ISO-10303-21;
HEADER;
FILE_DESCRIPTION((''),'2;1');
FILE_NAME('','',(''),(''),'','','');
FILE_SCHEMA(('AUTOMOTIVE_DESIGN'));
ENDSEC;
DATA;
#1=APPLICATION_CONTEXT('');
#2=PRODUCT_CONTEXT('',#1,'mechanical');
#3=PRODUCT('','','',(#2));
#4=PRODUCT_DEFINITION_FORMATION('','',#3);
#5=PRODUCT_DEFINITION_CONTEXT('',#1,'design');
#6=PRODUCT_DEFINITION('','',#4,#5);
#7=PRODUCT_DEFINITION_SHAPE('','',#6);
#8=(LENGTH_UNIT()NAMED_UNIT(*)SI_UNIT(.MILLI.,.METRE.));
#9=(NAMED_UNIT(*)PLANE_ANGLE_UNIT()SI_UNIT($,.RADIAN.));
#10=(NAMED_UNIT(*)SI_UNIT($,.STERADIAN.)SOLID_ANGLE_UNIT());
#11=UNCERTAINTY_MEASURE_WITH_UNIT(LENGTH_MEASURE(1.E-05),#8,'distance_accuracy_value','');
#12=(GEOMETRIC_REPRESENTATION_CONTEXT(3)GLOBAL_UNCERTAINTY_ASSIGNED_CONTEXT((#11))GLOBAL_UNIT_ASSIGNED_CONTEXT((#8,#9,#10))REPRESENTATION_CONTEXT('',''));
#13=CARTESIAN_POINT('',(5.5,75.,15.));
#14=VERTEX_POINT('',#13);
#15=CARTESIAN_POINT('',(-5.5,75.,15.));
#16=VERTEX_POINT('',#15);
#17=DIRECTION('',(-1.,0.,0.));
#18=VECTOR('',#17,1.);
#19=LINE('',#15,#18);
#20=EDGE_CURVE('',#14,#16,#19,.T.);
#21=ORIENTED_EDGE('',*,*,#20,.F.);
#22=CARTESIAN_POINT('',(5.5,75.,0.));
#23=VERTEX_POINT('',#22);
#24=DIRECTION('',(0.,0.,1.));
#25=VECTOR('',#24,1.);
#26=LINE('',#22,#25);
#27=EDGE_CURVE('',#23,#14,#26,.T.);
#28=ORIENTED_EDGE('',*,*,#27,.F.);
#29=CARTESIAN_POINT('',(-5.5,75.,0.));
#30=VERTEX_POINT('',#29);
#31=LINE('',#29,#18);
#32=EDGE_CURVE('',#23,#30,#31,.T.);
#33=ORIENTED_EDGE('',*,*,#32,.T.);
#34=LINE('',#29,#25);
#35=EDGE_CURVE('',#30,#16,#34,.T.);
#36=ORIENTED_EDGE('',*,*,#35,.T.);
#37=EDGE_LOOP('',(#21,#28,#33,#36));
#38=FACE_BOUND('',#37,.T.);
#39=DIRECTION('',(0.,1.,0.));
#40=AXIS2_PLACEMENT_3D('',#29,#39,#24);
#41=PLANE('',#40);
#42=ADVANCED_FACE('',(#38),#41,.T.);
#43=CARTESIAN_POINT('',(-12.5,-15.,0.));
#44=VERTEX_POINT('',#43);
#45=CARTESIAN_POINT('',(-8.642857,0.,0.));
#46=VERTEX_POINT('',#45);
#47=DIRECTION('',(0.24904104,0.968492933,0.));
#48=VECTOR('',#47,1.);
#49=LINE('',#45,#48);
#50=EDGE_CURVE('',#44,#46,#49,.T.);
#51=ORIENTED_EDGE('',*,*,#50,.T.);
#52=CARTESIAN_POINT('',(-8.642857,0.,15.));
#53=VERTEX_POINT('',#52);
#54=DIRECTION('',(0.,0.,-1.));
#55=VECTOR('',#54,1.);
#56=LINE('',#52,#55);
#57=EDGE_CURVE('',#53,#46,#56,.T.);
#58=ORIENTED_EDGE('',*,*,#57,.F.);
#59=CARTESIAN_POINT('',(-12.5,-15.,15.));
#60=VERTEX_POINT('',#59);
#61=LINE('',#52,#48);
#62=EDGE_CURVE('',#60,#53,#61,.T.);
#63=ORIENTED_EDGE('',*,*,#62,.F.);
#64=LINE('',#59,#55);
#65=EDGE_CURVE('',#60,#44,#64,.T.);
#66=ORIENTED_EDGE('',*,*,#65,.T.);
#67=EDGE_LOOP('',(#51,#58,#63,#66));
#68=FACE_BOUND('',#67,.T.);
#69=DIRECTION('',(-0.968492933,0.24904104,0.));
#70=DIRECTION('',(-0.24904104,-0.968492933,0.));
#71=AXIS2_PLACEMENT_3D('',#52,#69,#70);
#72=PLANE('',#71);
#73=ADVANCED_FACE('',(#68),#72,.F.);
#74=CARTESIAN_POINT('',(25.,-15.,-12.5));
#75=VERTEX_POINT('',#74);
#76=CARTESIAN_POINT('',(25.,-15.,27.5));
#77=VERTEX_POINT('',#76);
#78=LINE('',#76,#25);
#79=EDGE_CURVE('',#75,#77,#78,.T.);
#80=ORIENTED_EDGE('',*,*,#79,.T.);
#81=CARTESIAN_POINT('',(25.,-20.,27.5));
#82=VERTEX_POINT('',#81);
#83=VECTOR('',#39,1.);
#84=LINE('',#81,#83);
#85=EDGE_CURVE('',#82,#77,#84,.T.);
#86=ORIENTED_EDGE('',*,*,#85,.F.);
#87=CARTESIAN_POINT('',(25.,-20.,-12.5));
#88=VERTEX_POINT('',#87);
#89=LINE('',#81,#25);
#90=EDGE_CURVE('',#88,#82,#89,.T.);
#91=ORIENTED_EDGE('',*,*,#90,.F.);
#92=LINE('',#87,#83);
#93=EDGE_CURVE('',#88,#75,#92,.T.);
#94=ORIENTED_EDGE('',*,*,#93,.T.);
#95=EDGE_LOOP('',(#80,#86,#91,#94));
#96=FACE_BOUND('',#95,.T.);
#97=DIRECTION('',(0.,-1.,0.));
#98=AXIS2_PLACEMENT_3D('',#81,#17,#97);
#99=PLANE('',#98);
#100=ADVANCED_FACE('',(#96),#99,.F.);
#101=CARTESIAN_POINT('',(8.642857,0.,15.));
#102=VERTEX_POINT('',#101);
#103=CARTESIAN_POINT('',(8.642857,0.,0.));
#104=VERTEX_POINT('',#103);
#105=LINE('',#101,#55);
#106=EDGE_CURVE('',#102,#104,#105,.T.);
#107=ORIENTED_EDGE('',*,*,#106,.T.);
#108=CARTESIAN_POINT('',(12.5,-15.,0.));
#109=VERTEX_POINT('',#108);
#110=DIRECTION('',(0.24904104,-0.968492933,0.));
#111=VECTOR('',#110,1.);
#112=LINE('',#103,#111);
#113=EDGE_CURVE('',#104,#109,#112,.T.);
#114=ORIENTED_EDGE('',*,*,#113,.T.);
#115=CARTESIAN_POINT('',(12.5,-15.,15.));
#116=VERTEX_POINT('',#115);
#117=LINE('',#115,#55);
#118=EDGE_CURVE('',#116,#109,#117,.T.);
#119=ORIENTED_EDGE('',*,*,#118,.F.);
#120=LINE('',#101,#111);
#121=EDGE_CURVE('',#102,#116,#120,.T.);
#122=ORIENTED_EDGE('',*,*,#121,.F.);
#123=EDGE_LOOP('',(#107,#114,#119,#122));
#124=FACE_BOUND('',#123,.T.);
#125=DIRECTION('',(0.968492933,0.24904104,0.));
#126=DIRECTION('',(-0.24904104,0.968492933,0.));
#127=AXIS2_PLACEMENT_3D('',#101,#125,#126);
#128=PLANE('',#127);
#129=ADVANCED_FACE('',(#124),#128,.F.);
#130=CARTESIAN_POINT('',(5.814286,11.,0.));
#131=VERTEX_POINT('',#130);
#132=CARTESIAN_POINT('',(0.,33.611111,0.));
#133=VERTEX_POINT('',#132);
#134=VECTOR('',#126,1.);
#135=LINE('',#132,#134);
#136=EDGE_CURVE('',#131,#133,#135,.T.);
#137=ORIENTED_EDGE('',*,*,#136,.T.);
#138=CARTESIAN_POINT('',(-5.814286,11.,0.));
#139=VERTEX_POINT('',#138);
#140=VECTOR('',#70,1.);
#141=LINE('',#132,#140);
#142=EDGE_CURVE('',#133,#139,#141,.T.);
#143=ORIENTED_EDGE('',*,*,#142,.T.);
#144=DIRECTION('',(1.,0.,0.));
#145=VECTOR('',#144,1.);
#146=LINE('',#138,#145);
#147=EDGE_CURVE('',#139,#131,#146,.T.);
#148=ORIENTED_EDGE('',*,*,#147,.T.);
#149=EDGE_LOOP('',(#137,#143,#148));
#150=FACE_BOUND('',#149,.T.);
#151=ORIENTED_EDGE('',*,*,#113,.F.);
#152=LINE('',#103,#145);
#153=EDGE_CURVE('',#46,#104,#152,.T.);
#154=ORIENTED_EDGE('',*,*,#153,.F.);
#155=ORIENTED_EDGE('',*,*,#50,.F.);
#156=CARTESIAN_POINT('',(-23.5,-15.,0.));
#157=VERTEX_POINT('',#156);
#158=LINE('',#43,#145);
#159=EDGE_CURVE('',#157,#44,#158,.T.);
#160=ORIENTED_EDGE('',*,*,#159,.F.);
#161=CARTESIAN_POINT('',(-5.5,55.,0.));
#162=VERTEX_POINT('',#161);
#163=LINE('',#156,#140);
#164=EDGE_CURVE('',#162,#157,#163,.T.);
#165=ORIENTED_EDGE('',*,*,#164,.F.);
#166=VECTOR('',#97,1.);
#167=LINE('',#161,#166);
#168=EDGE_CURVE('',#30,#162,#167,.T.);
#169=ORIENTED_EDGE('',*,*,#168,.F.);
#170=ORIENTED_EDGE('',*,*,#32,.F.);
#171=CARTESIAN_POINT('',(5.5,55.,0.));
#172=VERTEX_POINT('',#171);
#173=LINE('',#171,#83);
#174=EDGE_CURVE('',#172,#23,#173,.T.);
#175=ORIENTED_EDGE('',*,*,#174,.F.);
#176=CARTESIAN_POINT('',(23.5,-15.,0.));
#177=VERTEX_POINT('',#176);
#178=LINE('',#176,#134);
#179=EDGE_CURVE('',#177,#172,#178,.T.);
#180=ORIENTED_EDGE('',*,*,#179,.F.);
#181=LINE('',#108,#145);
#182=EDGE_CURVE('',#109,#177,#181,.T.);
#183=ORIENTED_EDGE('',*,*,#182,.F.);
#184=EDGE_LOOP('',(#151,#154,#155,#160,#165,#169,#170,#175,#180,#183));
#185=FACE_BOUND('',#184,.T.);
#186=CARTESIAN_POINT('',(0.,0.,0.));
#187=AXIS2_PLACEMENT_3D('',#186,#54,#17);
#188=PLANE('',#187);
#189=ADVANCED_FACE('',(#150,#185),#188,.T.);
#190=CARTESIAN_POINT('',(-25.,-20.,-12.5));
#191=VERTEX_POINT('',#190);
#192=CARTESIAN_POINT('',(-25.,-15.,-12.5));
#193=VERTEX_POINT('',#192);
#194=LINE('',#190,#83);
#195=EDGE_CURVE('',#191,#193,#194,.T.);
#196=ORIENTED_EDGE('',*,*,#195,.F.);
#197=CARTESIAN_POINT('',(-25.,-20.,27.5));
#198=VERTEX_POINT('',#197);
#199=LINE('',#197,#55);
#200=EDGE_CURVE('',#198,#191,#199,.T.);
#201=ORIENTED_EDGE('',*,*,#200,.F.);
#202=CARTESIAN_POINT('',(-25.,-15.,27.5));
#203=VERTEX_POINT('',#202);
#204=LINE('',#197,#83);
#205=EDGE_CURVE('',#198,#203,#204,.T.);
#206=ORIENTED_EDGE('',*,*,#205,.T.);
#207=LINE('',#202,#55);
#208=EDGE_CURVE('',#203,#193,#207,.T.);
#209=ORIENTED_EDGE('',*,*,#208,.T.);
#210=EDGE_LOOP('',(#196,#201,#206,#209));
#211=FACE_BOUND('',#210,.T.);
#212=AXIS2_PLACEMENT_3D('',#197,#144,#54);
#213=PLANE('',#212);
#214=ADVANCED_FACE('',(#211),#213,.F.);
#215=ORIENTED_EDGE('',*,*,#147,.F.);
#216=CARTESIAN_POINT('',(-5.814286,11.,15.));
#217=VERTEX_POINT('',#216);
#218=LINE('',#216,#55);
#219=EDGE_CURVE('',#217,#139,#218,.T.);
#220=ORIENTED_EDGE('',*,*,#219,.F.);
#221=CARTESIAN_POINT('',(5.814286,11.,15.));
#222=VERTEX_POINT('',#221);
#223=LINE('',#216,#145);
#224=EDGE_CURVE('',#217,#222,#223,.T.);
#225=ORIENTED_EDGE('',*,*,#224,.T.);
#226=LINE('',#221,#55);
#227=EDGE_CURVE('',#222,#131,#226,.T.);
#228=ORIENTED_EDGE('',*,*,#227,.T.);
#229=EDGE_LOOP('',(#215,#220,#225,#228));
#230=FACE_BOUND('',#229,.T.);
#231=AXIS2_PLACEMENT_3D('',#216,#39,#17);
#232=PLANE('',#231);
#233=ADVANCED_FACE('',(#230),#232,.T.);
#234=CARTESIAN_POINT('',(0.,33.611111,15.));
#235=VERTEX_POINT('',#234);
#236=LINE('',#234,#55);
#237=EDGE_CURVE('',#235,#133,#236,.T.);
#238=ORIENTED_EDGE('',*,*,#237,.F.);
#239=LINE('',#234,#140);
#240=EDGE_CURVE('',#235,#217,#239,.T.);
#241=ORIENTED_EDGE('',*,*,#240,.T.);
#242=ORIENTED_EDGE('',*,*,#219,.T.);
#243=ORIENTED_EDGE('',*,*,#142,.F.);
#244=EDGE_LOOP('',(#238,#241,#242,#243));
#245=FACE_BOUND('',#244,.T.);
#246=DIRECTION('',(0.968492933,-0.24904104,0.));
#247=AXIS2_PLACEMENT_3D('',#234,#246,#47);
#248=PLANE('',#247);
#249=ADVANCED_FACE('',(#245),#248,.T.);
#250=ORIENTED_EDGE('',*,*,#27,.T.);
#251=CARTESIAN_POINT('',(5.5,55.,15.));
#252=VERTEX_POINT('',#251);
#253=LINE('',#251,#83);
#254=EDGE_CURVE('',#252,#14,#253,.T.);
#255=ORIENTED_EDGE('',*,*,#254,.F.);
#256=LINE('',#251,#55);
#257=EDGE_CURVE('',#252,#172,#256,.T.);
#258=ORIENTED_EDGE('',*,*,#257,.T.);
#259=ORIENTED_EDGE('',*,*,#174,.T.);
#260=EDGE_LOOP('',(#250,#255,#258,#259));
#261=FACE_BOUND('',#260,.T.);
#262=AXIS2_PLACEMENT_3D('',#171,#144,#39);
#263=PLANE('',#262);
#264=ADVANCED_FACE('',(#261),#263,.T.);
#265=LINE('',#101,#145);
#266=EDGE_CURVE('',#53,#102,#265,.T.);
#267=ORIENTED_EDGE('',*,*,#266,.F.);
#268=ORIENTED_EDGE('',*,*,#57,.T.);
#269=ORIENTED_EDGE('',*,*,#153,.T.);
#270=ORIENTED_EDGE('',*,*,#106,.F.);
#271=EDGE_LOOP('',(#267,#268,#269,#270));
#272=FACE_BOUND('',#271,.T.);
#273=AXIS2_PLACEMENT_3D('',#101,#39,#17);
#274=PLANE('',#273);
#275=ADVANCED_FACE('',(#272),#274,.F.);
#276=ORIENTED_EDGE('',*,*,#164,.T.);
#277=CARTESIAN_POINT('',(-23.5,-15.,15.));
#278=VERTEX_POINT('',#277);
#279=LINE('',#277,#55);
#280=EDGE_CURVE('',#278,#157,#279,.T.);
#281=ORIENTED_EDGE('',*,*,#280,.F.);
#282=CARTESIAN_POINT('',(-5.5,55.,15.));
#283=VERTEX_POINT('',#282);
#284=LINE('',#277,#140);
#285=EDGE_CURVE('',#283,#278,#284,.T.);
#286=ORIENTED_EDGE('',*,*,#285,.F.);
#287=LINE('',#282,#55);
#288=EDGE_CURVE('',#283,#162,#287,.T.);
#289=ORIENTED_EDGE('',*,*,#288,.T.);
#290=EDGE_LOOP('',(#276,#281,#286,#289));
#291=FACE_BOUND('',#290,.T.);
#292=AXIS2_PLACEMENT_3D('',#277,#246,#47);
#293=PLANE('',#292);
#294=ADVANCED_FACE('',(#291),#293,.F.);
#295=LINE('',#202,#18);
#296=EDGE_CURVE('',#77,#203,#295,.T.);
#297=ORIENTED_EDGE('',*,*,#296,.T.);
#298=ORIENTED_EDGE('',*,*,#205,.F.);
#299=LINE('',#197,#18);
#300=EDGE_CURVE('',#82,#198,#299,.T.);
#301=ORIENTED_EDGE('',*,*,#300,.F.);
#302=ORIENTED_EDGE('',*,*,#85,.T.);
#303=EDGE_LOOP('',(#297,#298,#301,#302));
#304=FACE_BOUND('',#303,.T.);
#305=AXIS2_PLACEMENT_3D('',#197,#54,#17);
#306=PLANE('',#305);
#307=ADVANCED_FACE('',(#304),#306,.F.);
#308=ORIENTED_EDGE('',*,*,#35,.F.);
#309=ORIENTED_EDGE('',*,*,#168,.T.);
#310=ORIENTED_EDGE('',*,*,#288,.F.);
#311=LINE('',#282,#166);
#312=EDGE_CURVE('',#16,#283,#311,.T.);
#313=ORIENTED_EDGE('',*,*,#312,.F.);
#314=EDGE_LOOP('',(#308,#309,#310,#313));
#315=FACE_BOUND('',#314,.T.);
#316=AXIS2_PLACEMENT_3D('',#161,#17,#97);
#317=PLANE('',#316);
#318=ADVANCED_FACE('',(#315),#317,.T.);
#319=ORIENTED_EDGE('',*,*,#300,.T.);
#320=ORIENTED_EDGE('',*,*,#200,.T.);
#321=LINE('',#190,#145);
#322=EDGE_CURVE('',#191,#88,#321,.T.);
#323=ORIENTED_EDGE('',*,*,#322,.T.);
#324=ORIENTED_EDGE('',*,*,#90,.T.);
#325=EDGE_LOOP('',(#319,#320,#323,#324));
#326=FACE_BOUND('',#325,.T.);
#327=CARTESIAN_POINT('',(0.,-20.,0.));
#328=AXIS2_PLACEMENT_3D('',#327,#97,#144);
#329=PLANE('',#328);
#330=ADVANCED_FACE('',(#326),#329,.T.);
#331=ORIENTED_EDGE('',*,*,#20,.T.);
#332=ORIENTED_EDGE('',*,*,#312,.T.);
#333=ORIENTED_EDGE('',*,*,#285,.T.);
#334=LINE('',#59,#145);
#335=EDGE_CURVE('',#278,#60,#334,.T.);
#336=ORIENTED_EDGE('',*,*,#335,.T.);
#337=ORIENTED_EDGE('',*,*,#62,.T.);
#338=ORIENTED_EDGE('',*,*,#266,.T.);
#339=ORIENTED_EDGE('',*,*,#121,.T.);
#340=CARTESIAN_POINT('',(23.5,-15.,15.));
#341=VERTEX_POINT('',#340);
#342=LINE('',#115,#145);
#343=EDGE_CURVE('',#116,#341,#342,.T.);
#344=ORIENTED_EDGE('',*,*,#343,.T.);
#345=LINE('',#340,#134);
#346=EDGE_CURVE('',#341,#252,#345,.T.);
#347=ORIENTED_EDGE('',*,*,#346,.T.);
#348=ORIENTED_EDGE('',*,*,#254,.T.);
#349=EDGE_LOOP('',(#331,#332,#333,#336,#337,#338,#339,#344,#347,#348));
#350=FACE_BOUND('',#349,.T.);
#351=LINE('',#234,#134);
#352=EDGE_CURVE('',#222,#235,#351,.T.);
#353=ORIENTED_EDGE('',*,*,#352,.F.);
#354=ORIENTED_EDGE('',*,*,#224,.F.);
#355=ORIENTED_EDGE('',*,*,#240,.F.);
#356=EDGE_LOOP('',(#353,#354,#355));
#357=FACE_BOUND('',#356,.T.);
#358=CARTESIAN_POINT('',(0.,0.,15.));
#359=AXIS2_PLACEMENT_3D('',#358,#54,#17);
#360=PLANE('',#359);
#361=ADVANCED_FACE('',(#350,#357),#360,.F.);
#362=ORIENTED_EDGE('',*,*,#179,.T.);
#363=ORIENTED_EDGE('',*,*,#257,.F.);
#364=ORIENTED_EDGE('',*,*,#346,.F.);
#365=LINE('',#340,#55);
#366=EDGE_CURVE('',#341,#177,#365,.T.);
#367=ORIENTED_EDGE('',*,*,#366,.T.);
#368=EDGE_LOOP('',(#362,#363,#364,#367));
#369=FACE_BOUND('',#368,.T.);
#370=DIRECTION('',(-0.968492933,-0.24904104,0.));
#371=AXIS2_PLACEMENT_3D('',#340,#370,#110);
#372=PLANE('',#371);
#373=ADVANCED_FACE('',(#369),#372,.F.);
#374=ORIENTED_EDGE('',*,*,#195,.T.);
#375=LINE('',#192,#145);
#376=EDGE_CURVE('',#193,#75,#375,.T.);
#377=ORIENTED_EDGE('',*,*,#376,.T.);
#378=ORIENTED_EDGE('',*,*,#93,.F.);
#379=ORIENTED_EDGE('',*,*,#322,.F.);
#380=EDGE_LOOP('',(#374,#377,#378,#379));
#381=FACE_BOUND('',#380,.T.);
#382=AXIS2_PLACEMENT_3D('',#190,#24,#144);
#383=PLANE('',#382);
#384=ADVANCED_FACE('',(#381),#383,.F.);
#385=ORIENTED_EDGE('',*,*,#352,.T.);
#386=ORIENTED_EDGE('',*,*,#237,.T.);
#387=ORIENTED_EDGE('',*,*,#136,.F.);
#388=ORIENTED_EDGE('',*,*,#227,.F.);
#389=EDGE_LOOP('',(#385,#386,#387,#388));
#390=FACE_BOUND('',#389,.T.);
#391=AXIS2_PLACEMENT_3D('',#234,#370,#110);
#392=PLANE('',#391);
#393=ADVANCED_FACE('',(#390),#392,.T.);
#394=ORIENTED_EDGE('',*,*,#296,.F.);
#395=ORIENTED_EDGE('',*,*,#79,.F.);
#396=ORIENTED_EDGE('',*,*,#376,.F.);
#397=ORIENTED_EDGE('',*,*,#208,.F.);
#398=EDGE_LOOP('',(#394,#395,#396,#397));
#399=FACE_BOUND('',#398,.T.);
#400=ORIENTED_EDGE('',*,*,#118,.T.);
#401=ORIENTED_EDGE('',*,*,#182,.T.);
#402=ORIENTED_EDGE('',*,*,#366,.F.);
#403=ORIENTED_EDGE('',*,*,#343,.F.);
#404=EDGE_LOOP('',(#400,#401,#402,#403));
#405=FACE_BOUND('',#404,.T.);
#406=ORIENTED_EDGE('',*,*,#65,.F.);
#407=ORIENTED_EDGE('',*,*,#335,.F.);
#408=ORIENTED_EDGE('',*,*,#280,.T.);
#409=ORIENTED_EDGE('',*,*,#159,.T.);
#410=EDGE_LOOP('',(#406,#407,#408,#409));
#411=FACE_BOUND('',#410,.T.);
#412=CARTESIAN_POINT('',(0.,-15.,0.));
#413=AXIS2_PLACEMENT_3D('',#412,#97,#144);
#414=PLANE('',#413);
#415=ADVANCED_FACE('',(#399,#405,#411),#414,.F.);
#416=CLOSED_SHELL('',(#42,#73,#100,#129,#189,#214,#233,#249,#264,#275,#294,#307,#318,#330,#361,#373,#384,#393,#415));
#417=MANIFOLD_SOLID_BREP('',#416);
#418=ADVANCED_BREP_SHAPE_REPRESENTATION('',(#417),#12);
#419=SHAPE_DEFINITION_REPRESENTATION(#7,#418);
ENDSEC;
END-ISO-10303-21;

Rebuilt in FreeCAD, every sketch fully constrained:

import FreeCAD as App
import Part
import Sketcher
from FreeCAD import Vector
Q = App.Units.Quantity


def add_polygon(sketch, points):
    """Adds a closed chain of lines whose ends are joined by coincident constraints."""
    first, n = sketch.GeometryCount, len(points)
    for a, b in zip(points, points[1:] + points[:1]):
        sketch.addGeometry(Part.LineSegment(App.Vector(*a, 0), App.Vector(*b, 0)), False)
    for i in range(n):
        sketch.addConstraint(Sketcher.Constraint("Coincident", first + i, 2, first + (i + 1) % n, 1))

doc = App.newDocument("Part")
body = doc.addObject("PartDesign::Body", "Body")

sketch1 = body.newObject("Sketcher::SketchObject", "Sketch")
sketch1.AttachmentSupport = (doc.getObject("XY_Plane"), [""])
sketch1.MapMode = "FlatFace"
add_polygon(sketch1, [(-9, 0), (9, 0), (12, -15), (24, -15), (6, 55), (-6, 55), (-24, -15), (-12, -15)])
add_polygon(sketch1, [(0, 34), (6, 11), (-6, 11)])
sketch1.addConstraint([
    Sketcher.Constraint("Horizontal", 0),
    Sketcher.Constraint("Horizontal", 2),
    Sketcher.Constraint("Horizontal", 4),
    Sketcher.Constraint("Horizontal", 6),
    Sketcher.Constraint("Horizontal", 9),
    Sketcher.Constraint("Symmetric", 0, 2, 7, 2, -1, 1),
    Sketcher.Constraint("Symmetric", 2, 2, 5, 2, -2),
    Sketcher.Constraint("PointOnObject", 10, 2, -2),
    Sketcher.Constraint("Parallel", 1, 3),
    Sketcher.Constraint("Parallel", 5, 7),
    Sketcher.Constraint("Parallel", 3, 8),
    Sketcher.Constraint("Parallel", 7, 10),
    Sketcher.Constraint("Equal", 2, 4),
    Sketcher.Constraint("Equal", 4, 6),
    Sketcher.Constraint("DistanceX", 2, 1, 2, 2, Q("11 mm")),
    Sketcher.Constraint("DistanceY", 1, 2, -1, 1, Q("15 mm")),
    Sketcher.Constraint("DistanceY", -1, 1, 3, 2, Q("55 mm")),
    Sketcher.Constraint("DistanceY", -1, 1, 8, 2, Q("11 mm")),
    Sketcher.Constraint("DistanceX", 3, 2, 1, 2, Q("7 mm")),
    Sketcher.Constraint("DistanceX", 9, 2, 9, 1, Q("11.628571 mm")),
])
pad1 = body.newObject("PartDesign::Pad", "Pad")
pad1.Profile = sketch1
pad1.Length = 15

sketch2 = body.newObject("Sketcher::SketchObject", "Sketch001")
sketch2.AttachmentSupport = (doc.getObject("XZ_Plane"), [""])
sketch2.MapMode = "FlatFace"
sketch2.AttachmentOffset = App.Placement(Vector(0, 0, 15), App.Rotation())
add_polygon(sketch2, [(-25, 28), (-25, -12), (25, -12), (25, 28)])
sketch2.addConstraint([
    Sketcher.Constraint("Vertical", 0),
    Sketcher.Constraint("Horizontal", 1),
    Sketcher.Constraint("Vertical", 2),
    Sketcher.Constraint("Horizontal", 3),
    Sketcher.Constraint("DistanceX", 1, 1, 1, 2, Q("50 mm")),
    Sketcher.Constraint("DistanceY", 0, 2, 0, 1, Q("40 mm")),
    Sketcher.Constraint("DistanceX", 0, 2, -1, 1, Q("25 mm")),
    Sketcher.Constraint("DistanceY", 0, 2, -1, 1, Q("12.5 mm")),
])
pad2 = body.newObject("PartDesign::Pad", "Pad001")
pad2.Profile = sketch2
pad2.Length = 5

sketch3 = body.newObject("Sketcher::SketchObject", "Sketch002")
sketch3.AttachmentSupport = (doc.getObject("XY_Plane"), [""])
sketch3.MapMode = "FlatFace"
sketch3.AttachmentOffset = App.Placement(Vector(0, 0, 15), App.Rotation())
add_polygon(sketch3, [(-6, 75), (-6, 55), (6, 55), (6, 75)])
sketch3.addConstraint([
    Sketcher.Constraint("Vertical", 0),
    Sketcher.Constraint("Horizontal", 1),
    Sketcher.Constraint("Vertical", 2),
    Sketcher.Constraint("Horizontal", 3),
    Sketcher.Constraint("DistanceX", 1, 1, 1, 2, Q("11 mm")),
    Sketcher.Constraint("DistanceY", 0, 2, 0, 1, Q("20 mm")),
    Sketcher.Constraint("DistanceY", -1, 1, 0, 2, Q("55 mm")),
    Sketcher.Constraint("DistanceX", 0, 2, -1, 1, Q("5.5 mm")),
])
pad3 = body.newObject("PartDesign::Pad", "Pad002")
pad3.Profile = sketch3
pad3.Length = 15
pad3.Reversed = True

doc.recompute()
